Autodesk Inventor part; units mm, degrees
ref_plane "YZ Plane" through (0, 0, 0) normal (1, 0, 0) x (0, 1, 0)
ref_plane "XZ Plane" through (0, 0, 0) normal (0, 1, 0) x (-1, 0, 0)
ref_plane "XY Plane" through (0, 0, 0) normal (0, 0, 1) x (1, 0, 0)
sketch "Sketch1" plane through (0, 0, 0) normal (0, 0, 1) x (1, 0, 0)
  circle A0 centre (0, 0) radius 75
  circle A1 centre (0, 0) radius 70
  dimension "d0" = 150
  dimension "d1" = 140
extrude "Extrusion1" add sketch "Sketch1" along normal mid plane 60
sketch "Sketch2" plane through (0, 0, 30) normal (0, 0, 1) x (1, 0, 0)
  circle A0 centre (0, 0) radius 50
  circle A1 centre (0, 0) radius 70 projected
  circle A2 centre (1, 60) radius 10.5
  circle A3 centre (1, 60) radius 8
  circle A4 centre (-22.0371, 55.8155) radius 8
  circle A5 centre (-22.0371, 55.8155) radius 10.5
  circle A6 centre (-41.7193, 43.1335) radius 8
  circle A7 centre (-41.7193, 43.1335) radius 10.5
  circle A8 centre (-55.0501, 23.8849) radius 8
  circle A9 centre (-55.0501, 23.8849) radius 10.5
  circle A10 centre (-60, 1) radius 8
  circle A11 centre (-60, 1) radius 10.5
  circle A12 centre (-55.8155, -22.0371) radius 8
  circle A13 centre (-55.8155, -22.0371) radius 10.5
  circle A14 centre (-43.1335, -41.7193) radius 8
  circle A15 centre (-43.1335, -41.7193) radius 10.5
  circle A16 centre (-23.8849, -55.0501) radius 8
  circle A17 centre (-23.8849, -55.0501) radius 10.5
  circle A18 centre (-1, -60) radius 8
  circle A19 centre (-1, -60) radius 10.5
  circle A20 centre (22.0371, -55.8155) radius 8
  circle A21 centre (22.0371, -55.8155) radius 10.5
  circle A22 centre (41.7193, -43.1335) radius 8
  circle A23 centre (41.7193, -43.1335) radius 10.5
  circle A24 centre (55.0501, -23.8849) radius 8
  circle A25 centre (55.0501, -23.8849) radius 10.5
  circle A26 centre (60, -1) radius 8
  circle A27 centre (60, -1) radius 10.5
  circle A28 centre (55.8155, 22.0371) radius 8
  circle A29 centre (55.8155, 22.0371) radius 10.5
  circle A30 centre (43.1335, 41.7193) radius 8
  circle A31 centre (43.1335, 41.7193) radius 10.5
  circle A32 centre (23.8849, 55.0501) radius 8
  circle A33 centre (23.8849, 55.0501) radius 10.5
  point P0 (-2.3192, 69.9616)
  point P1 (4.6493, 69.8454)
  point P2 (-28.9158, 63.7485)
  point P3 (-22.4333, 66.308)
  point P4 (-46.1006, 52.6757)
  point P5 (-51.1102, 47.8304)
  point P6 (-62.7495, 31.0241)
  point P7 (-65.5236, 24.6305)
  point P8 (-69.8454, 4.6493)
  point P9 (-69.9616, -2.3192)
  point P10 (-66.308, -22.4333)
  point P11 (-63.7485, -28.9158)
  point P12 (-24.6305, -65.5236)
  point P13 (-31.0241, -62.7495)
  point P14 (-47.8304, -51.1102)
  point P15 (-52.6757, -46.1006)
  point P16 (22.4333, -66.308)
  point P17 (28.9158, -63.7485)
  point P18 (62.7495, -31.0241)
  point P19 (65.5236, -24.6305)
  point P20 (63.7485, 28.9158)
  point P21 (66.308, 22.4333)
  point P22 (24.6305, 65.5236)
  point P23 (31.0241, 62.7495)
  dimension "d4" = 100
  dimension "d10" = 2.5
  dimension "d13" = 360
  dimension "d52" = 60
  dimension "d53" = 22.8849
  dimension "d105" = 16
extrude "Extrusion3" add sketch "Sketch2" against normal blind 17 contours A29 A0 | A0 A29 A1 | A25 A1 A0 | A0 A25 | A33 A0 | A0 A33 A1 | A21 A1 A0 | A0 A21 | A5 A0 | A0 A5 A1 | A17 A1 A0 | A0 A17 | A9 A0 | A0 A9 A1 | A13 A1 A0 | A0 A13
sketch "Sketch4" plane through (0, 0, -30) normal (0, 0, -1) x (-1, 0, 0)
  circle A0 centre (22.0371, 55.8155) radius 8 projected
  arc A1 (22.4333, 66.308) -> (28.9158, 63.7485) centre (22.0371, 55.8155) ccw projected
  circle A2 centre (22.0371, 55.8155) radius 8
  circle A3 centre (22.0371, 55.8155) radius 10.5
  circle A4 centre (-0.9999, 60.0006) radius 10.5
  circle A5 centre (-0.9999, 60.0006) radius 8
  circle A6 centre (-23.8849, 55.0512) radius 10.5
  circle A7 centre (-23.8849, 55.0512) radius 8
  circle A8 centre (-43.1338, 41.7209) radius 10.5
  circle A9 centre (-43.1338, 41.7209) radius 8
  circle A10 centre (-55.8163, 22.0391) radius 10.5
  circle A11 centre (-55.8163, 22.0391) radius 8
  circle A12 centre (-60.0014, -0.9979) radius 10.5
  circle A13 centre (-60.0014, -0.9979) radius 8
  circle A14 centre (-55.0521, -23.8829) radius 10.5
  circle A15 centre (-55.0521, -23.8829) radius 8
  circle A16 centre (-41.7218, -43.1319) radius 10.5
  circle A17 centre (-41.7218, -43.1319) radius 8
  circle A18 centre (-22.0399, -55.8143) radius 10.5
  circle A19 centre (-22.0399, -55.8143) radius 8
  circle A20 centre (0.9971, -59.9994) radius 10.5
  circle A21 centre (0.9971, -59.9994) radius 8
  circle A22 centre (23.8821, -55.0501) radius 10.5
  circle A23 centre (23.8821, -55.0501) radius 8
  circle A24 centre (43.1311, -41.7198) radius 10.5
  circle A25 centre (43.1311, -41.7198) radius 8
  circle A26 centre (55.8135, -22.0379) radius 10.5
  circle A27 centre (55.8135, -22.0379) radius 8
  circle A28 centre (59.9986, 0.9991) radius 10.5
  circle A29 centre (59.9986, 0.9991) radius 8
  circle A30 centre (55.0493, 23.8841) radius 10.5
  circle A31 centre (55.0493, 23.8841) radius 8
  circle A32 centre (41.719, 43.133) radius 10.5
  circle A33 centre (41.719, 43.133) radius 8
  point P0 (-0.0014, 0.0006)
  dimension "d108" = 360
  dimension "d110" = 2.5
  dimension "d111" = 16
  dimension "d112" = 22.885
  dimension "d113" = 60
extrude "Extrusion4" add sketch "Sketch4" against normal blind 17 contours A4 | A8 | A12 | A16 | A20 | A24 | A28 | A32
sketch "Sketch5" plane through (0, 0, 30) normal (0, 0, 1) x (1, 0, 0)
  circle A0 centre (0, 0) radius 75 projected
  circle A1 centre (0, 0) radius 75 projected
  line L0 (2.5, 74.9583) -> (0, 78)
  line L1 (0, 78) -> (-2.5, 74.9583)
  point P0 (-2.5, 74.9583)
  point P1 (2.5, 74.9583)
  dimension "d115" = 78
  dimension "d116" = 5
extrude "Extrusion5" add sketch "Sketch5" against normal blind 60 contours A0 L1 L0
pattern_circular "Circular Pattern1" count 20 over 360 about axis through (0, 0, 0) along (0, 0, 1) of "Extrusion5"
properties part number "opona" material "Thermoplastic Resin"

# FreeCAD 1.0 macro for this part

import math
import FreeCAD as App
import Part
import Sketcher
Q = App.Units.Quantity

doc = App.newDocument("Part")
params = doc.addObject("Spreadsheet::Sheet", "Params")
for row, (alias, value) in enumerate([
    ("sketch1_diameter", "150 mm"),
    ("sketch1_diameter2", "140 mm"),
    ("pad1_length", "60 mm"),
    ("sketch2_diameter", "16 mm"),
    ("sketch2_radius", "70 mm"),
    ("sketch2_radius2", "10.5 mm"),
    ("pad2_length", "17 mm"),
    ("sketch3_diameter", "16 mm"),
    ("sketch3_diameter2", "21 mm"),
    ("pad3_length", "17 mm"),
    ("sketch4_radius", "75 mm"),
    ("pad4_length", "60 mm"),
], start=1):
    params.set(f"A{row}", alias)
    params.set(f"B{row}", "=" + value)
    params.setAlias(f"B{row}", alias)

body = doc.addObject("PartDesign::Body", "Body")

sketch1 = body.newObject("Sketcher::SketchObject", "Sketch")
sketch1.AttachmentSupport = (doc.getObject("XY_Plane"), [""])
sketch1.MapMode = "FlatFace"
sketch1.addGeometry(Part.Circle(App.Vector(0, 0, 0), App.Vector(0, 0, 1), 75), False)
sketch1.addGeometry(Part.Circle(App.Vector(0, 0, 0), App.Vector(0, 0, 1), 70), False)
sketch1.addConstraint(Sketcher.Constraint("Coincident", 0, 3, -1, 1))
sketch1.addConstraint(Sketcher.Constraint("Coincident", 1, 3, -1, 1))
sketch1.addConstraint(Sketcher.Constraint("Diameter", 0, Q("150 mm")))
sketch1.addConstraint(Sketcher.Constraint("Diameter", 1, Q("140 mm")))
sketch1.setExpression("Constraints[2]", "Params.sketch1_diameter")
sketch1.setExpression("Constraints[3]", "Params.sketch1_diameter2")
pad1 = body.newObject("PartDesign::Pad", "Pad")
pad1.Profile = sketch1
pad1.setExpression("Length", "Params.pad1_length")
pad1.Midplane = True

sketch2 = body.newObject("Sketcher::SketchObject", "Sketch001")
sketch2.AttachmentSupport = (doc.getObject("XY_Plane"), [""])
sketch2.MapMode = "FlatFace"
sketch2.AttachmentOffset = App.Placement(App.Vector(0, 0, 30), App.Rotation())
sketch2.addGeometry(Part.ArcOfCircle(Part.Circle(App.Vector(0, 0, 0), App.Vector(0, 0, 1), 70), math.radians(18.69), math.radians(24.4)), False)
sketch2.addGeometry(Part.ArcOfCircle(Part.Circle(App.Vector(56, 22, 0), App.Vector(0, 0, 1), 10), math.radians(41), math.radians(362)), False)
sketch2.addGeometry(Part.Circle(App.Vector(56, 22, 0), App.Vector(0, 0, 1), 8), False)
sketch2.addGeometry(Part.ArcOfCircle(Part.Circle(App.Vector(0, 0, 0), App.Vector(0, 0, 1), 70), math.radians(-26.31), math.radians(-20.6)), False)
sketch2.addGeometry(Part.ArcOfCircle(Part.Circle(App.Vector(55, -24, 0), App.Vector(0, 0, 1), 10), math.radians(-4), math.radians(317)), False)
sketch2.addGeometry(Part.Circle(App.Vector(55, -24, 0), App.Vector(0, 0, 1), 8), False)
sketch2.addGeometry(Part.ArcOfCircle(Part.Circle(App.Vector(0, 0, 0), App.Vector(0, 0, 1), 70), math.radians(63.69), math.radians(69.4)), False)
sketch2.addGeometry(Part.ArcOfCircle(Part.Circle(App.Vector(24, 55, 0), App.Vector(0, 0, 1), 10), math.radians(86), math.radians(407)), False)
sketch2.addGeometry(Part.Circle(App.Vector(24, 55, 0), App.Vector(0, 0, 1), 8), False)
sketch2.addGeometry(Part.ArcOfCircle(Part.Circle(App.Vector(0, 0, 0), App.Vector(0, 0, 1), 70), math.radians(-71.31), math.radians(-65.6)), False)
sketch2.addGeometry(Part.ArcOfCircle(Part.Circle(App.Vector(22, -56, 0), App.Vector(0, 0, 1), 10), math.radians(-49), math.radians(272)), False)
sketch2.addGeometry(Part.Circle(App.Vector(22, -56, 0), App.Vector(0, 0, 1), 8), False)
sketch2.addGeometry(Part.ArcOfCircle(Part.Circle(App.Vector(0, 0, 0), App.Vector(0, 0, 1), 70), math.radians(108.69), math.radians(114.4)), False)
sketch2.addGeometry(Part.ArcOfCircle(Part.Circle(App.Vector(-22, 56, 0), App.Vector(0, 0, 1), 10), math.radians(131), math.radians(452)), False)
sketch2.addGeometry(Part.Circle(App.Vector(-22, 56, 0), App.Vector(0, 0, 1), 8), False)
sketch2.addGeometry(Part.ArcOfCircle(Part.Circle(App.Vector(0, 0, 0), App.Vector(0, 0, 1), 70), math.radians(-116.31), math.radians(-110.6)), False)
sketch2.addGeometry(Part.ArcOfCircle(Part.Circle(App.Vector(-24, -55, 0), App.Vector(0, 0, 1), 10), math.radians(-94), math.radians(227)), False)
sketch2.addGeometry(Part.Circle(App.Vector(-24, -55, 0), App.Vector(0, 0, 1), 8), False)
sketch2.addGeometry(Part.ArcOfCircle(Part.Circle(App.Vector(0, 0, 0), App.Vector(0, 0, 1), 70), math.radians(153.69), math.radians(159.4)), False)
sketch2.addGeometry(Part.ArcOfCircle(Part.Circle(App.Vector(-55, 24, 0), App.Vector(0, 0, 1), 10), math.radians(176), math.radians(497)), False)
sketch2.addGeometry(Part.Circle(App.Vector(-55, 24, 0), App.Vector(0, 0, 1), 8), False)
sketch2.addGeometry(Part.ArcOfCircle(Part.Circle(App.Vector(0, 0, 0), App.Vector(0, 0, 1), 70), math.radians(-161.31), math.radians(-155.6)), False)
sketch2.addGeometry(Part.ArcOfCircle(Part.Circle(App.Vector(-56, -22, 0), App.Vector(0, 0, 1), 10), math.radians(-139), math.radians(182)), False)
sketch2.addGeometry(Part.Circle(App.Vector(-56, -22, 0), App.Vector(0, 0, 1), 8), False)
sketch2.addConstraint(Sketcher.Constraint("Coincident", 0, 1, 1, 2))
sketch2.addConstraint(Sketcher.Constraint("Coincident", 1, 1, 0, 2))
sketch2.addConstraint(Sketcher.Constraint("Coincident", 3, 1, 4, 2))
sketch2.addConstraint(Sketcher.Constraint("Coincident", 4, 1, 3, 2))
sketch2.addConstraint(Sketcher.Constraint("Coincident", 6, 1, 7, 2))
sketch2.addConstraint(Sketcher.Constraint("Coincident", 7, 1, 6, 2))
sketch2.addConstraint(Sketcher.Constraint("Coincident", 9, 1, 10, 2))
sketch2.addConstraint(Sketcher.Constraint("Coincident", 10, 1, 9, 2))
sketch2.addConstraint(Sketcher.Constraint("Coincident", 12, 1, 13, 2))
sketch2.addConstraint(Sketcher.Constraint("Coincident", 13, 1, 12, 2))
sketch2.addConstraint(Sketcher.Constraint("Coincident", 15, 1, 16, 2))
sketch2.addConstraint(Sketcher.Constraint("Coincident", 16, 1, 15, 2))
sketch2.addConstraint(Sketcher.Constraint("Coincident", 18, 1, 19, 2))
sketch2.addConstraint(Sketcher.Constraint("Coincident", 19, 1, 18, 2))
sketch2.addConstraint(Sketcher.Constraint("Coincident", 21, 1, 22, 2))
sketch2.addConstraint(Sketcher.Constraint("Coincident", 22, 1, 21, 2))
sketch2.addConstraint(Sketcher.Constraint("Coincident", 0, 3, -1, 1))
sketch2.addConstraint(Sketcher.Constraint("Coincident", 3, 3, -1, 1))
sketch2.addConstraint(Sketcher.Constraint("Coincident", 6, 3, -1, 1))
sketch2.addConstraint(Sketcher.Constraint("Coincident", 9, 3, -1, 1))
sketch2.addConstraint(Sketcher.Constraint("Coincident", 12, 3, -1, 1))
sketch2.addConstraint(Sketcher.Constraint("Coincident", 15, 3, -1, 1))
sketch2.addConstraint(Sketcher.Constraint("Coincident", 18, 3, -1, 1))
sketch2.addConstraint(Sketcher.Constraint("Coincident", 21, 3, -1, 1))
sketch2.addConstraint(Sketcher.Constraint("Coincident", 2, 3, 1, 3))
sketch2.addConstraint(Sketcher.Constraint("Coincident", 5, 3, 4, 3))
sketch2.addConstraint(Sketcher.Constraint("Coincident", 8, 3, 7, 3))
sketch2.addConstraint(Sketcher.Constraint("Coincident", 11, 3, 10, 3))
sketch2.addConstraint(Sketcher.Constraint("Coincident", 14, 3, 13, 3))
sketch2.addConstraint(Sketcher.Constraint("Coincident", 17, 3, 16, 3))
sketch2.addConstraint(Sketcher.Constraint("Coincident", 20, 3, 19, 3))
sketch2.addConstraint(Sketcher.Constraint("Coincident", 23, 3, 22, 3))
sketch2.addConstraint(Sketcher.Constraint("Equal", 0, 3))
sketch2.addConstraint(Sketcher.Constraint("Equal", 1, 4))
sketch2.addConstraint(Sketcher.Constraint("Equal", 2, 5))
sketch2.addConstraint(Sketcher.Constraint("Equal", 3, 6))
sketch2.addConstraint(Sketcher.Constraint("Equal", 4, 7))
sketch2.addConstraint(Sketcher.Constraint("Equal", 5, 8))
sketch2.addConstraint(Sketcher.Constraint("Equal", 6, 9))
sketch2.addConstraint(Sketcher.Constraint("Equal", 7, 10))
sketch2.addConstraint(Sketcher.Constraint("Equal", 8, 11))
sketch2.addConstraint(Sketcher.Constraint("Equal", 9, 12))
sketch2.addConstraint(Sketcher.Constraint("Equal", 10, 13))
sketch2.addConstraint(Sketcher.Constraint("Equal", 11, 14))
sketch2.addConstraint(Sketcher.Constraint("Equal", 12, 15))
sketch2.addConstraint(Sketcher.Constraint("Equal", 13, 16))
sketch2.addConstraint(Sketcher.Constraint("Equal", 14, 17))
sketch2.addConstraint(Sketcher.Constraint("Equal", 15, 18))
sketch2.addConstraint(Sketcher.Constraint("Equal", 16, 19))
sketch2.addConstraint(Sketcher.Constraint("Equal", 17, 20))
sketch2.addConstraint(Sketcher.Constraint("Equal", 18, 21))
sketch2.addConstraint(Sketcher.Constraint("Equal", 19, 22))
sketch2.addConstraint(Sketcher.Constraint("Equal", 20, 23))
sketch2.addConstraint(Sketcher.Constraint("Symmetric", 10, 3, 13, 3, -1, 1))
sketch2.addConstraint(Sketcher.Constraint("Symmetric", 7, 3, 16, 3, -1, 1))
sketch2.addConstraint(Sketcher.Constraint("Symmetric", 4, 3, 19, 3, -1, 1))
sketch2.addConstraint(Sketcher.Constraint("Symmetric", 1, 3, 22, 3, -1, 1))
sketch2.addConstraint(Sketcher.Constraint("Diameter", 2, Q("16 mm")))
sketch2.addConstraint(Sketcher.Constraint("Radius", 0, Q("70 mm")))
sketch2.addConstraint(Sketcher.Constraint("Radius", 1, Q("10.5 mm")))
sketch2.addConstraint(Sketcher.Constraint("DistanceX", -1, 1, 4, 3, Q("55.05 mm")))
sketch2.addConstraint(Sketcher.Constraint("DistanceY", -1, 1, 7, 3, Q("55.05 mm")))
sketch2.addConstraint(Sketcher.Constraint("DistanceY", -1, 1, 1, 3, Q("22.037 mm")))
sketch2.addConstraint(Sketcher.Constraint("DistanceY", 4, 3, -1, 1, Q("23.885 mm")))
sketch2.addConstraint(Sketcher.Constraint("DistanceX", -1, 1, 7, 3, Q("23.885 mm")))
sketch2.addConstraint(Sketcher.Constraint("DistanceX", -1, 1, 10, 3, Q("22.037 mm")))
sketch2.addConstraint(Sketcher.Constraint("DistanceX", -1, 1, 0, 1, Q("66.308 mm")))
sketch2.addConstraint(Sketcher.Constraint("DistanceY", 9, 1, -1, 1, Q("66.308 mm")))
sketch2.setExpression("Constraints[57]", "Params.sketch2_diameter")
sketch2.setExpression("Constraints[58]", "Params.sketch2_radius")
sketch2.setExpression("Constraints[59]", "Params.sketch2_radius2")
pad2 = body.newObject("PartDesign::Pad", "Pad001")
pad2.Profile = sketch2
pad2.setExpression("Length", "Params.pad2_length")
pad2.Reversed = True

sketch3 = body.newObject("Sketcher::SketchObject", "Sketch002")
sketch3.AttachmentSupport = (doc.getObject("XY_Plane"), [""])
sketch3.MapMode = "FlatFace"
sketch3.AttachmentOffset = App.Placement(App.Vector(0, 0, -30), App.Rotation())
sketch3.addGeometry(Part.Circle(App.Vector(1, 60, 0), App.Vector(0, 0, 1), 10), False)
sketch3.addGeometry(Part.Circle(App.Vector(1, 60, 0), App.Vector(0, 0, 1), 8), False)
sketch3.addGeometry(Part.Circle(App.Vector(43, 42, 0), App.Vector(0, 0, 1), 10), False)
sketch3.addGeometry(Part.Circle(App.Vector(43, 42, 0), App.Vector(0, 0, 1), 8), False)
sketch3.addGeometry(Part.Circle(App.Vector(60, -1, 0), App.Vector(0, 0, 1), 10), False)
sketch3.addGeometry(Part.Circle(App.Vector(60, -1, 0), App.Vector(0, 0, 1), 8), False)
sketch3.addGeometry(Part.Circle(App.Vector(42, -43, 0), App.Vector(0, 0, 1), 10), False)
sketch3.addGeometry(Part.Circle(App.Vector(42, -43, 0), App.Vector(0, 0, 1), 8), False)
sketch3.addGeometry(Part.Circle(App.Vector(-1, -60, 0), App.Vector(0, 0, 1), 10), False)
sketch3.addGeometry(Part.Circle(App.Vector(-1, -60, 0), App.Vector(0, 0, 1), 8), False)
sketch3.addGeometry(Part.Circle(App.Vector(-43, -42, 0), App.Vector(0, 0, 1), 10), False)
sketch3.addGeometry(Part.Circle(App.Vector(-43, -42, 0), App.Vector(0, 0, 1), 8), False)
sketch3.addGeometry(Part.Circle(App.Vector(-60, 1, 0), App.Vector(0, 0, 1), 10), False)
sketch3.addGeometry(Part.Circle(App.Vector(-60, 1, 0), App.Vector(0, 0, 1), 8), False)
sketch3.addGeometry(Part.Circle(App.Vector(-42, 43, 0), App.Vector(0, 0, 1), 10), False)
sketch3.addGeometry(Part.Circle(App.Vector(-42, 43, 0), App.Vector(0, 0, 1), 8), False)
sketch3.addConstraint(Sketcher.Constraint("Coincident", 1, 3, 0, 3))
sketch3.addConstraint(Sketcher.Constraint("Coincident", 3, 3, 2, 3))
sketch3.addConstraint(Sketcher.Constraint("Coincident", 5, 3, 4, 3))
sketch3.addConstraint(Sketcher.Constraint("Coincident", 7, 3, 6, 3))
sketch3.addConstraint(Sketcher.Constraint("Coincident", 9, 3, 8, 3))
sketch3.addConstraint(Sketcher.Constraint("Coincident", 11, 3, 10, 3))
sketch3.addConstraint(Sketcher.Constraint("Coincident", 13, 3, 12, 3))
sketch3.addConstraint(Sketcher.Constraint("Coincident", 15, 3, 14, 3))
sketch3.addConstraint(Sketcher.Constraint("Equal", 0, 2))
sketch3.addConstraint(Sketcher.Constraint("Equal", 1, 3))
sketch3.addConstraint(Sketcher.Constraint("Equal", 2, 4))
sketch3.addConstraint(Sketcher.Constraint("Equal", 3, 5))
sketch3.addConstraint(Sketcher.Constraint("Equal", 4, 6))
sketch3.addConstraint(Sketcher.Constraint("Equal", 5, 7))
sketch3.addConstraint(Sketcher.Constraint("Equal", 6, 8))
sketch3.addConstraint(Sketcher.Constraint("Equal", 7, 9))
sketch3.addConstraint(Sketcher.Constraint("Equal", 8, 10))
sketch3.addConstraint(Sketcher.Constraint("Equal", 9, 11))
sketch3.addConstraint(Sketcher.Constraint("Equal", 10, 12))
sketch3.addConstraint(Sketcher.Constraint("Equal", 11, 13))
sketch3.addConstraint(Sketcher.Constraint("Equal", 12, 14))
sketch3.addConstraint(Sketcher.Constraint("Equal", 13, 15))
sketch3.addConstraint(Sketcher.Constraint("Diameter", 1, Q("16 mm")))
sketch3.addConstraint(Sketcher.Constraint("Diameter", 0, Q("21 mm")))
sketch3.addConstraint(Sketcher.Constraint("DistanceX", -1, 1, 0, 3, Q("1 mm")))
sketch3.addConstraint(Sketcher.Constraint("DistanceY", -1, 1, 0, 3, Q("60.0006 mm")))
sketch3.addConstraint(Sketcher.Constraint("DistanceY", 8, 3, -1, 1, Q("59.9994 mm")))
sketch3.addConstraint(Sketcher.Constraint("DistanceY", -1, 1, 2, 3, Q("41.721 mm")))
sketch3.addConstraint(Sketcher.Constraint("DistanceY", 4, 3, -1, 1, Q("0.998 mm")))
sketch3.addConstraint(Sketcher.Constraint("DistanceY", 6, 3, -1, 1, Q("43.132 mm")))
sketch3.addConstraint(Sketcher.Constraint("DistanceX", 8, 3, -1, 1, Q("0.997 mm")))
sketch3.addConstraint(Sketcher.Constraint("DistanceX", 10, 3, -1, 1, Q("43.131 mm")))
sketch3.addConstraint(Sketcher.Constraint("DistanceY", -1, 1, 12, 3, Q("0.999 mm")))
sketch3.addConstraint(Sketcher.Constraint("DistanceX", 14, 3, -1, 1, Q("41.719 mm")))
sketch3.addConstraint(Sketcher.Constraint("DistanceY", -1, 1, 14, 3, Q("43.133 mm")))
sketch3.addConstraint(Sketcher.Constraint("DistanceX", 0, 3, 2, 3, Q("42.134 mm")))
sketch3.addConstraint(Sketcher.Constraint("DistanceX", 6, 3, 2, 3, Q("1.412 mm")))
sketch3.addConstraint(Sketcher.Constraint("DistanceY", 6, 3, 10, 3, Q("1.412 mm")))
sketch3.addConstraint(Sketcher.Constraint("DistanceX", -1, 1, 4, 3, Q("60.0014 mm")))
sketch3.addConstraint(Sketcher.Constraint("DistanceX", 12, 3, -1, 1, Q("59.9986 mm")))
sketch3.setExpression("Constraints[22]", "Params.sketch3_diameter")
sketch3.setExpression("Constraints[23]", "Params.sketch3_diameter2")
pad3 = body.newObject("PartDesign::Pad", "Pad002")
pad3.Profile = sketch3
pad3.setExpression("Length", "Params.pad3_length")

sketch4 = body.newObject("Sketcher::SketchObject", "Sketch003")
sketch4.AttachmentSupport = (doc.getObject("XY_Plane"), [""])
sketch4.MapMode = "FlatFace"
sketch4.AttachmentOffset = App.Placement(App.Vector(0, 0, 30), App.Rotation())
sketch4.addGeometry(Part.ArcOfCircle(Part.Circle(App.Vector(0, 0, 0), App.Vector(0, 0, 1), 75), math.radians(88.09), math.radians(91.91)), False)
sketch4.addGeometry(Part.LineSegment(App.Vector(2.5, 75, 0), App.Vector(0, 78, 0)), False)
sketch4.addGeometry(Part.LineSegment(App.Vector(0, 78, 0), App.Vector(-2.5, 75, 0)), False)
sketch4.addConstraint(Sketcher.Constraint("Coincident", 0, 1, 1, 1))
sketch4.addConstraint(Sketcher.Constraint("Coincident", 1, 2, 2, 1))
sketch4.addConstraint(Sketcher.Constraint("Coincident", 2, 2, 0, 2))
sketch4.addConstraint(Sketcher.Constraint("Coincident", 0, 3, -1, 1))
sketch4.addConstraint(Sketcher.Constraint("PointOnObject", 1, 2, -2))
sketch4.addConstraint(Sketcher.Constraint("Horizontal", 0, 1, 2, 2))
sketch4.addConstraint(Sketcher.Constraint("DistanceY", -1, 1, 1, 2, Q("78 mm")))
sketch4.addConstraint(Sketcher.Constraint("Radius", 0, Q("75 mm")))
sketch4.addConstraint(Sketcher.Constraint("DistanceX", 2, 2, 0, 1, Q("5 mm")))
sketch4.setExpression("Constraints[7]", "Params.sketch4_radius")
pad4 = body.newObject("PartDesign::Pad", "Pad003")
pad4.Profile = sketch4
pad4.setExpression("Length", "Params.pad4_length")
pad4.Reversed = True
doc.recompute()

polarpattern = body.newObject("PartDesign::PolarPattern", "PolarPattern")
polarpattern.Originals = [pad4]
polarpattern.Axis = (doc.getObject("Z_Axis"), [""])
polarpattern.Angle = 360
polarpattern.Occurrences = 20
body.Tip = polarpattern

doc.recompute()
